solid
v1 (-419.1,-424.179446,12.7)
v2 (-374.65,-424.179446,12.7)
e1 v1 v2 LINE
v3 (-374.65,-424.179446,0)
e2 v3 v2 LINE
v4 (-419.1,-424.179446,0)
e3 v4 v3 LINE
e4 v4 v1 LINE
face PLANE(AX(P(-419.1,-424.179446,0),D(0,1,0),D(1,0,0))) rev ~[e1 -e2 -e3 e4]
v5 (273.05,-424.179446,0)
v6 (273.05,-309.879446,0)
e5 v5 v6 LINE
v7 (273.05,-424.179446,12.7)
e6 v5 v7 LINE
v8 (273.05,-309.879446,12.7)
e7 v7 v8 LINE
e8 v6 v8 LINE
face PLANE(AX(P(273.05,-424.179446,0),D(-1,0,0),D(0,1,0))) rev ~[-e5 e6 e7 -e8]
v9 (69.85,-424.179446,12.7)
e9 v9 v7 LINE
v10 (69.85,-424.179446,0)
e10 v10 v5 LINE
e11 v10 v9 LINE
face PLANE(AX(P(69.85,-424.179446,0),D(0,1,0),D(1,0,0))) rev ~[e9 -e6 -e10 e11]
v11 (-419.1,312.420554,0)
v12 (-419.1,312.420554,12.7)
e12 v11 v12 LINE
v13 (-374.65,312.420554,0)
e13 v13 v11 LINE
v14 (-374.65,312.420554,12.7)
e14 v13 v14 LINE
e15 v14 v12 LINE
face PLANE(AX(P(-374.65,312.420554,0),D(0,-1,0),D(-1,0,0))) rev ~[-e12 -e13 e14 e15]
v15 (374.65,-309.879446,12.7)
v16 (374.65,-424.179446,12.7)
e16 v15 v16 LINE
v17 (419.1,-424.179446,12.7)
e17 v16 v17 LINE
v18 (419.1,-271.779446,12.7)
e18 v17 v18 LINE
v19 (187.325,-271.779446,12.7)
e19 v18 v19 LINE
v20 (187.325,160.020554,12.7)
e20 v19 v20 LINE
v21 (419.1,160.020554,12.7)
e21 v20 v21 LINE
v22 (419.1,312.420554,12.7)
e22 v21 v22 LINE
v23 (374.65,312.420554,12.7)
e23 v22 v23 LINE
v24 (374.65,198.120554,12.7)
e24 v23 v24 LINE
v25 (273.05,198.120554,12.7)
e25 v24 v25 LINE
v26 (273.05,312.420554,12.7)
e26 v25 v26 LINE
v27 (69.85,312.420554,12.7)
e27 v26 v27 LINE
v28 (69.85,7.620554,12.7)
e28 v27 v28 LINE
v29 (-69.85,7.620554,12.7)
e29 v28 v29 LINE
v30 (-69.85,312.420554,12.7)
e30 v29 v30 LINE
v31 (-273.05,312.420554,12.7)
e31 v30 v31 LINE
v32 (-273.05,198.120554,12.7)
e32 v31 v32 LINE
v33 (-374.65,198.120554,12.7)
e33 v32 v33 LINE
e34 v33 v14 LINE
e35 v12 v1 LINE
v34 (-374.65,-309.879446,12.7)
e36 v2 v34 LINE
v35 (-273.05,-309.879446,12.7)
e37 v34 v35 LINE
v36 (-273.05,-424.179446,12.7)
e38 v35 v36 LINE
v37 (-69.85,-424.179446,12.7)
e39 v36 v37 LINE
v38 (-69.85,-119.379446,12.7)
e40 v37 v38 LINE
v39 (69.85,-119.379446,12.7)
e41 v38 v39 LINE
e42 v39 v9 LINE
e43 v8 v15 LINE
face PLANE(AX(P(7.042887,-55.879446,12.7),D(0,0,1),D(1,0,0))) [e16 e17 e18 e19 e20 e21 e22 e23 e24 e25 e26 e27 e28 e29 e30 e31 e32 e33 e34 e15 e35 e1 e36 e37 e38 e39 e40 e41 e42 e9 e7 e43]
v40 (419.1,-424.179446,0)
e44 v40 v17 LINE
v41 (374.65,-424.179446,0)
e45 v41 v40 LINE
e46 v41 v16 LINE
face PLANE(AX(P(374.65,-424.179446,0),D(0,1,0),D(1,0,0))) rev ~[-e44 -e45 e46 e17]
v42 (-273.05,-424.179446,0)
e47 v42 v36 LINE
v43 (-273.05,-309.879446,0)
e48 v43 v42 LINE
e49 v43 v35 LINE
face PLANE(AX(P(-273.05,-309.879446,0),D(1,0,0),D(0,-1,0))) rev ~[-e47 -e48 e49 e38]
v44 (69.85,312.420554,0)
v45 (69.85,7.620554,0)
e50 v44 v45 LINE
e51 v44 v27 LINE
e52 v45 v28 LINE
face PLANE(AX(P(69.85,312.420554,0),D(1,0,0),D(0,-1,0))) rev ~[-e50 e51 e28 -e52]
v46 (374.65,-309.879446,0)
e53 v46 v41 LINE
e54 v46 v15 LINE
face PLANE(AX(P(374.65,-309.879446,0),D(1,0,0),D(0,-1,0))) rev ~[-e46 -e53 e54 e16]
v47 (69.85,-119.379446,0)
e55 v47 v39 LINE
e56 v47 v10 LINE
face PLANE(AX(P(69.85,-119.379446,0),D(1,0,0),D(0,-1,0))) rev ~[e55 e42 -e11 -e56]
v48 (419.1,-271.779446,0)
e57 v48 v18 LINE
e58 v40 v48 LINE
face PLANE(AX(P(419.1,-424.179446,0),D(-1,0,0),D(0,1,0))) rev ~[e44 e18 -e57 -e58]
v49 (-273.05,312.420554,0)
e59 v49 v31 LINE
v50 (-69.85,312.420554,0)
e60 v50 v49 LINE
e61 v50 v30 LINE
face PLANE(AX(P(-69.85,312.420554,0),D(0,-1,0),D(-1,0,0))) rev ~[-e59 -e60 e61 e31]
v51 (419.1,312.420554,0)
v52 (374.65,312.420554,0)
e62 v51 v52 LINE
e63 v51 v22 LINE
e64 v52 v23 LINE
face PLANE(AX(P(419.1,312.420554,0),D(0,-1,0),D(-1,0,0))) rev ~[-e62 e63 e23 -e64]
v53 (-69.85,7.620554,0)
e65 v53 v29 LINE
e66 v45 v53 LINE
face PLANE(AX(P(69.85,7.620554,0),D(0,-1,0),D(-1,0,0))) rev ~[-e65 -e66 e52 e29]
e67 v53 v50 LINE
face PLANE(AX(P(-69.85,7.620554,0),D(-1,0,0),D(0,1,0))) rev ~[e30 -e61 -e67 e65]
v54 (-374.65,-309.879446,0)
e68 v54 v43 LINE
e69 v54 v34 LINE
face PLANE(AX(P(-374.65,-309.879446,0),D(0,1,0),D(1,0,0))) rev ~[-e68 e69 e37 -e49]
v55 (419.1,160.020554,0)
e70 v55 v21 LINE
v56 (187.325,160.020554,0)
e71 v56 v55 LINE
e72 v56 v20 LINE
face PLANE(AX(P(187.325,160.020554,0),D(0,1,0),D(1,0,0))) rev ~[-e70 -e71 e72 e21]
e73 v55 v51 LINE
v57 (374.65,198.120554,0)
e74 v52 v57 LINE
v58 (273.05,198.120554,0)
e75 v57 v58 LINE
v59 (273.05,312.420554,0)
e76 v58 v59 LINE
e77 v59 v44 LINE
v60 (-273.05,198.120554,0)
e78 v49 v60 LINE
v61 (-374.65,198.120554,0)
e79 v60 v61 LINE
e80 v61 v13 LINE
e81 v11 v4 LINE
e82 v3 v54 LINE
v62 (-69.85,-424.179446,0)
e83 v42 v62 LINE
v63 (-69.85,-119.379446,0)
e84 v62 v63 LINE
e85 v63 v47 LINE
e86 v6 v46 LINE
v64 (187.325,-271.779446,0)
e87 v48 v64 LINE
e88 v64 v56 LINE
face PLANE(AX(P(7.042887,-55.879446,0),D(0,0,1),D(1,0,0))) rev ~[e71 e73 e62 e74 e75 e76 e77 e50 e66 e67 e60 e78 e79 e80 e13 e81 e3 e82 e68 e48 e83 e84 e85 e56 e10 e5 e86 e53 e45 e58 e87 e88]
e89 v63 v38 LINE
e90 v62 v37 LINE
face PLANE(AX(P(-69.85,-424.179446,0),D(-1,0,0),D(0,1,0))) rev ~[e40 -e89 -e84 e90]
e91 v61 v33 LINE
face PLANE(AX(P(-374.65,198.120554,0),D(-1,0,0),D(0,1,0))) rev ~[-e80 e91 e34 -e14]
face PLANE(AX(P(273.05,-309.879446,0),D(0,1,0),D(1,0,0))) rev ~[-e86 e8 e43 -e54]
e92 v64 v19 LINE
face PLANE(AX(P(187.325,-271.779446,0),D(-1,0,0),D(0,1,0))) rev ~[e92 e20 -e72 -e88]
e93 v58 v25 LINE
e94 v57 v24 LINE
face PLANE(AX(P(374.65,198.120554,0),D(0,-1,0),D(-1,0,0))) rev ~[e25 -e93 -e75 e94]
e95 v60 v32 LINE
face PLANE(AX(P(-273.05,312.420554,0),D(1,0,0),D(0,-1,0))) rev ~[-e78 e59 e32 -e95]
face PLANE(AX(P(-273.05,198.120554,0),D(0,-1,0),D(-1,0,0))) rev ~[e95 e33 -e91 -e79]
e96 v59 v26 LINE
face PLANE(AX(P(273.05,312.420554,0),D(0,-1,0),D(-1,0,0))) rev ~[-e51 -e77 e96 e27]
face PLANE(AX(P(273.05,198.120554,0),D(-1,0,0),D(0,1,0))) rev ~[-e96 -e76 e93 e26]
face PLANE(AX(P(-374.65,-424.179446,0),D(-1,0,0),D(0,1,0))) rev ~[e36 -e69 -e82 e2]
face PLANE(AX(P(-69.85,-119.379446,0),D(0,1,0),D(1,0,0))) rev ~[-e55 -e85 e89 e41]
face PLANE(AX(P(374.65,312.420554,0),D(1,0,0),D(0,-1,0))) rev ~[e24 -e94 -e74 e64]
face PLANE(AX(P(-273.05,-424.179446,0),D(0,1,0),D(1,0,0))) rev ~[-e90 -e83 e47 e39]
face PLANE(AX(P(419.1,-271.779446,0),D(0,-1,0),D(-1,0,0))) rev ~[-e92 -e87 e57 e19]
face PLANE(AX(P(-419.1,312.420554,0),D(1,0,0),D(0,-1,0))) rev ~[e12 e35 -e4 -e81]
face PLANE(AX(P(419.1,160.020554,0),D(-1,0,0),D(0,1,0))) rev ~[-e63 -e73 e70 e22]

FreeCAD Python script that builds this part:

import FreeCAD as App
import Part
import Sketcher
from FreeCAD import Vector
Q = App.Units.Quantity


def add_polygon(sketch, points):
    """Adds a closed chain of lines whose ends are joined by coincident constraints."""
    first, n = sketch.GeometryCount, len(points)
    for a, b in zip(points, points[1:] + points[:1]):
        sketch.addGeometry(Part.LineSegment(App.Vector(*a, 0), App.Vector(*b, 0)), False)
    for i in range(n):
        sketch.addConstraint(Sketcher.Constraint("Coincident", first + i, 2, first + (i + 1) % n, 1))

doc = App.newDocument("Part")
body = doc.addObject("PartDesign::Body", "Body")

# Sketch on XY plane
sketch1 = body.newObject("Sketcher::SketchObject", "Sketch")
sketch1.AttachmentSupport = (doc.getObject("XY_Plane"), [""])
sketch1.MapMode = "FlatFace"
add_polygon(sketch1, [(187, -272), (187, 160), (419, 160), (419, 312), (375, 312), (375, 198), (273, 198), (273, 312), (70, 312), (70, 8), (-70, 8), (-70, 312), (-273, 312), (-273, 198), (-375, 198), (-375, 312), (-419, 312), (-419, -424), (-375, -424), (-375, -310), (-273, -310), (-273, -424), (-70, -424), (-70, -119), (70, -119), (70, -424), (273, -424), (273, -310), (375, -310), (375, -424), (419, -424), (419, -272)])  # lines 0-31
sketch1.addConstraint(Sketcher.Constraint("Vertical", 0))
sketch1.addConstraint(Sketcher.Constraint("Horizontal", 1))
sketch1.addConstraint(Sketcher.Constraint("Vertical", 2))
sketch1.addConstraint(Sketcher.Constraint("Horizontal", 3))
sketch1.addConstraint(Sketcher.Constraint("Vertical", 4))
sketch1.addConstraint(Sketcher.Constraint("Horizontal", 5))
sketch1.addConstraint(Sketcher.Constraint("Vertical", 6))
sketch1.addConstraint(Sketcher.Constraint("Horizontal", 7))
sketch1.addConstraint(Sketcher.Constraint("Vertical", 8))
sketch1.addConstraint(Sketcher.Constraint("Horizontal", 9))
sketch1.addConstraint(Sketcher.Constraint("Vertical", 10))
sketch1.addConstraint(Sketcher.Constraint("Horizontal", 11))
sketch1.addConstraint(Sketcher.Constraint("Vertical", 12))
sketch1.addConstraint(Sketcher.Constraint("Horizontal", 13))
sketch1.addConstraint(Sketcher.Constraint("Vertical", 14))
sketch1.addConstraint(Sketcher.Constraint("Horizontal", 15))
sketch1.addConstraint(Sketcher.Constraint("Vertical", 16))
sketch1.addConstraint(Sketcher.Constraint("Horizontal", 17))
sketch1.addConstraint(Sketcher.Constraint("Vertical", 18))
sketch1.addConstraint(Sketcher.Constraint("Horizontal", 19))
sketch1.addConstraint(Sketcher.Constraint("Vertical", 20))
sketch1.addConstraint(Sketcher.Constraint("Horizontal", 21))
sketch1.addConstraint(Sketcher.Constraint("Vertical", 22))
sketch1.addConstraint(Sketcher.Constraint("Horizontal", 23))
sketch1.addConstraint(Sketcher.Constraint("Vertical", 24))
sketch1.addConstraint(Sketcher.Constraint("Horizontal", 25))
sketch1.addConstraint(Sketcher.Constraint("Vertical", 26))
sketch1.addConstraint(Sketcher.Constraint("Horizontal", 27))
sketch1.addConstraint(Sketcher.Constraint("Vertical", 28))
sketch1.addConstraint(Sketcher.Constraint("Horizontal", 29))
sketch1.addConstraint(Sketcher.Constraint("Vertical", 30))
sketch1.addConstraint(Sketcher.Constraint("Horizontal", 31))
sketch1.addConstraint(Sketcher.Constraint("Symmetric", 7, 2, 10, 2, -2))
sketch1.addConstraint(Sketcher.Constraint("Symmetric", 5, 2, 12, 2, -2))
sketch1.addConstraint(Sketcher.Constraint("Symmetric", 3, 2, 14, 2, -2))
sketch1.addConstraint(Sketcher.Constraint("Symmetric", 21, 2, 24, 2, -2))
sketch1.addConstraint(Sketcher.Constraint("Symmetric", 19, 2, 26, 2, -2))
sketch1.addConstraint(Sketcher.Constraint("Symmetric", 17, 2, 28, 2, -2))
sketch1.addConstraint(Sketcher.Constraint("Horizontal", 3, 2, 6, 2))
sketch1.addConstraint(Sketcher.Constraint("Horizontal", 17, 2, 20, 2))
sketch1.addConstraint(Sketcher.Constraint("Vertical", 14, 2, 17, 2))
sketch1.addConstraint(Sketcher.Constraint("Vertical", 12, 2, 19, 2))
sketch1.addConstraint(Sketcher.Constraint("Vertical", 10, 2, 21, 2))
sketch1.addConstraint(Sketcher.Constraint("Vertical", 2, 2, 29, 2))
sketch1.addConstraint(Sketcher.Constraint("Equal", 3, 15))
sketch1.addConstraint(Sketcher.Constraint("Equal", 14, 18))
sketch1.addConstraint(Sketcher.Constraint("Equal", 10, 22))
sketch1.addConstraint(Sketcher.Constraint("Equal", 2, 30))
sketch1.addConstraint(Sketcher.Constraint("DistanceX", 5, 2, 5, 1, Q("4 in")))
sketch1.addConstraint(Sketcher.Constraint("DistanceX", 7, 2, 7, 1, Q("8 in")))
sketch1.addConstraint(Sketcher.Constraint("DistanceY", 0, 1, 0, 2, Q("17 in")))
sketch1.addConstraint(Sketcher.Constraint("DistanceY", 2, 1, 2, 2, Q("6 in")))
sketch1.addConstraint(Sketcher.Constraint("DistanceY", 8, 2, 8, 1, Q("12 in")))
sketch1.addConstraint(Sketcher.Constraint("DistanceX", 9, 2, 9, 1, Q("5.5 in")))
sketch1.addConstraint(Sketcher.Constraint("DistanceY", 4, 2, 4, 1, Q("4.5 in")))
sketch1.addConstraint(Sketcher.Constraint("DistanceX", 3, 2, 3, 1, Q("1.75 in")))
sketch1.addConstraint(Sketcher.Constraint("DistanceX", 1, 1, 1, 2, Q("9.125 in")))
sketch1.addConstraint(Sketcher.Constraint("DistanceY", -1, 1, 0, 2, 160.020554))
pad1 = body.newObject("PartDesign::Pad", "Pad")
pad1.Profile = sketch1
pad1.Length = Q("0.5 in")

doc.recompute()
